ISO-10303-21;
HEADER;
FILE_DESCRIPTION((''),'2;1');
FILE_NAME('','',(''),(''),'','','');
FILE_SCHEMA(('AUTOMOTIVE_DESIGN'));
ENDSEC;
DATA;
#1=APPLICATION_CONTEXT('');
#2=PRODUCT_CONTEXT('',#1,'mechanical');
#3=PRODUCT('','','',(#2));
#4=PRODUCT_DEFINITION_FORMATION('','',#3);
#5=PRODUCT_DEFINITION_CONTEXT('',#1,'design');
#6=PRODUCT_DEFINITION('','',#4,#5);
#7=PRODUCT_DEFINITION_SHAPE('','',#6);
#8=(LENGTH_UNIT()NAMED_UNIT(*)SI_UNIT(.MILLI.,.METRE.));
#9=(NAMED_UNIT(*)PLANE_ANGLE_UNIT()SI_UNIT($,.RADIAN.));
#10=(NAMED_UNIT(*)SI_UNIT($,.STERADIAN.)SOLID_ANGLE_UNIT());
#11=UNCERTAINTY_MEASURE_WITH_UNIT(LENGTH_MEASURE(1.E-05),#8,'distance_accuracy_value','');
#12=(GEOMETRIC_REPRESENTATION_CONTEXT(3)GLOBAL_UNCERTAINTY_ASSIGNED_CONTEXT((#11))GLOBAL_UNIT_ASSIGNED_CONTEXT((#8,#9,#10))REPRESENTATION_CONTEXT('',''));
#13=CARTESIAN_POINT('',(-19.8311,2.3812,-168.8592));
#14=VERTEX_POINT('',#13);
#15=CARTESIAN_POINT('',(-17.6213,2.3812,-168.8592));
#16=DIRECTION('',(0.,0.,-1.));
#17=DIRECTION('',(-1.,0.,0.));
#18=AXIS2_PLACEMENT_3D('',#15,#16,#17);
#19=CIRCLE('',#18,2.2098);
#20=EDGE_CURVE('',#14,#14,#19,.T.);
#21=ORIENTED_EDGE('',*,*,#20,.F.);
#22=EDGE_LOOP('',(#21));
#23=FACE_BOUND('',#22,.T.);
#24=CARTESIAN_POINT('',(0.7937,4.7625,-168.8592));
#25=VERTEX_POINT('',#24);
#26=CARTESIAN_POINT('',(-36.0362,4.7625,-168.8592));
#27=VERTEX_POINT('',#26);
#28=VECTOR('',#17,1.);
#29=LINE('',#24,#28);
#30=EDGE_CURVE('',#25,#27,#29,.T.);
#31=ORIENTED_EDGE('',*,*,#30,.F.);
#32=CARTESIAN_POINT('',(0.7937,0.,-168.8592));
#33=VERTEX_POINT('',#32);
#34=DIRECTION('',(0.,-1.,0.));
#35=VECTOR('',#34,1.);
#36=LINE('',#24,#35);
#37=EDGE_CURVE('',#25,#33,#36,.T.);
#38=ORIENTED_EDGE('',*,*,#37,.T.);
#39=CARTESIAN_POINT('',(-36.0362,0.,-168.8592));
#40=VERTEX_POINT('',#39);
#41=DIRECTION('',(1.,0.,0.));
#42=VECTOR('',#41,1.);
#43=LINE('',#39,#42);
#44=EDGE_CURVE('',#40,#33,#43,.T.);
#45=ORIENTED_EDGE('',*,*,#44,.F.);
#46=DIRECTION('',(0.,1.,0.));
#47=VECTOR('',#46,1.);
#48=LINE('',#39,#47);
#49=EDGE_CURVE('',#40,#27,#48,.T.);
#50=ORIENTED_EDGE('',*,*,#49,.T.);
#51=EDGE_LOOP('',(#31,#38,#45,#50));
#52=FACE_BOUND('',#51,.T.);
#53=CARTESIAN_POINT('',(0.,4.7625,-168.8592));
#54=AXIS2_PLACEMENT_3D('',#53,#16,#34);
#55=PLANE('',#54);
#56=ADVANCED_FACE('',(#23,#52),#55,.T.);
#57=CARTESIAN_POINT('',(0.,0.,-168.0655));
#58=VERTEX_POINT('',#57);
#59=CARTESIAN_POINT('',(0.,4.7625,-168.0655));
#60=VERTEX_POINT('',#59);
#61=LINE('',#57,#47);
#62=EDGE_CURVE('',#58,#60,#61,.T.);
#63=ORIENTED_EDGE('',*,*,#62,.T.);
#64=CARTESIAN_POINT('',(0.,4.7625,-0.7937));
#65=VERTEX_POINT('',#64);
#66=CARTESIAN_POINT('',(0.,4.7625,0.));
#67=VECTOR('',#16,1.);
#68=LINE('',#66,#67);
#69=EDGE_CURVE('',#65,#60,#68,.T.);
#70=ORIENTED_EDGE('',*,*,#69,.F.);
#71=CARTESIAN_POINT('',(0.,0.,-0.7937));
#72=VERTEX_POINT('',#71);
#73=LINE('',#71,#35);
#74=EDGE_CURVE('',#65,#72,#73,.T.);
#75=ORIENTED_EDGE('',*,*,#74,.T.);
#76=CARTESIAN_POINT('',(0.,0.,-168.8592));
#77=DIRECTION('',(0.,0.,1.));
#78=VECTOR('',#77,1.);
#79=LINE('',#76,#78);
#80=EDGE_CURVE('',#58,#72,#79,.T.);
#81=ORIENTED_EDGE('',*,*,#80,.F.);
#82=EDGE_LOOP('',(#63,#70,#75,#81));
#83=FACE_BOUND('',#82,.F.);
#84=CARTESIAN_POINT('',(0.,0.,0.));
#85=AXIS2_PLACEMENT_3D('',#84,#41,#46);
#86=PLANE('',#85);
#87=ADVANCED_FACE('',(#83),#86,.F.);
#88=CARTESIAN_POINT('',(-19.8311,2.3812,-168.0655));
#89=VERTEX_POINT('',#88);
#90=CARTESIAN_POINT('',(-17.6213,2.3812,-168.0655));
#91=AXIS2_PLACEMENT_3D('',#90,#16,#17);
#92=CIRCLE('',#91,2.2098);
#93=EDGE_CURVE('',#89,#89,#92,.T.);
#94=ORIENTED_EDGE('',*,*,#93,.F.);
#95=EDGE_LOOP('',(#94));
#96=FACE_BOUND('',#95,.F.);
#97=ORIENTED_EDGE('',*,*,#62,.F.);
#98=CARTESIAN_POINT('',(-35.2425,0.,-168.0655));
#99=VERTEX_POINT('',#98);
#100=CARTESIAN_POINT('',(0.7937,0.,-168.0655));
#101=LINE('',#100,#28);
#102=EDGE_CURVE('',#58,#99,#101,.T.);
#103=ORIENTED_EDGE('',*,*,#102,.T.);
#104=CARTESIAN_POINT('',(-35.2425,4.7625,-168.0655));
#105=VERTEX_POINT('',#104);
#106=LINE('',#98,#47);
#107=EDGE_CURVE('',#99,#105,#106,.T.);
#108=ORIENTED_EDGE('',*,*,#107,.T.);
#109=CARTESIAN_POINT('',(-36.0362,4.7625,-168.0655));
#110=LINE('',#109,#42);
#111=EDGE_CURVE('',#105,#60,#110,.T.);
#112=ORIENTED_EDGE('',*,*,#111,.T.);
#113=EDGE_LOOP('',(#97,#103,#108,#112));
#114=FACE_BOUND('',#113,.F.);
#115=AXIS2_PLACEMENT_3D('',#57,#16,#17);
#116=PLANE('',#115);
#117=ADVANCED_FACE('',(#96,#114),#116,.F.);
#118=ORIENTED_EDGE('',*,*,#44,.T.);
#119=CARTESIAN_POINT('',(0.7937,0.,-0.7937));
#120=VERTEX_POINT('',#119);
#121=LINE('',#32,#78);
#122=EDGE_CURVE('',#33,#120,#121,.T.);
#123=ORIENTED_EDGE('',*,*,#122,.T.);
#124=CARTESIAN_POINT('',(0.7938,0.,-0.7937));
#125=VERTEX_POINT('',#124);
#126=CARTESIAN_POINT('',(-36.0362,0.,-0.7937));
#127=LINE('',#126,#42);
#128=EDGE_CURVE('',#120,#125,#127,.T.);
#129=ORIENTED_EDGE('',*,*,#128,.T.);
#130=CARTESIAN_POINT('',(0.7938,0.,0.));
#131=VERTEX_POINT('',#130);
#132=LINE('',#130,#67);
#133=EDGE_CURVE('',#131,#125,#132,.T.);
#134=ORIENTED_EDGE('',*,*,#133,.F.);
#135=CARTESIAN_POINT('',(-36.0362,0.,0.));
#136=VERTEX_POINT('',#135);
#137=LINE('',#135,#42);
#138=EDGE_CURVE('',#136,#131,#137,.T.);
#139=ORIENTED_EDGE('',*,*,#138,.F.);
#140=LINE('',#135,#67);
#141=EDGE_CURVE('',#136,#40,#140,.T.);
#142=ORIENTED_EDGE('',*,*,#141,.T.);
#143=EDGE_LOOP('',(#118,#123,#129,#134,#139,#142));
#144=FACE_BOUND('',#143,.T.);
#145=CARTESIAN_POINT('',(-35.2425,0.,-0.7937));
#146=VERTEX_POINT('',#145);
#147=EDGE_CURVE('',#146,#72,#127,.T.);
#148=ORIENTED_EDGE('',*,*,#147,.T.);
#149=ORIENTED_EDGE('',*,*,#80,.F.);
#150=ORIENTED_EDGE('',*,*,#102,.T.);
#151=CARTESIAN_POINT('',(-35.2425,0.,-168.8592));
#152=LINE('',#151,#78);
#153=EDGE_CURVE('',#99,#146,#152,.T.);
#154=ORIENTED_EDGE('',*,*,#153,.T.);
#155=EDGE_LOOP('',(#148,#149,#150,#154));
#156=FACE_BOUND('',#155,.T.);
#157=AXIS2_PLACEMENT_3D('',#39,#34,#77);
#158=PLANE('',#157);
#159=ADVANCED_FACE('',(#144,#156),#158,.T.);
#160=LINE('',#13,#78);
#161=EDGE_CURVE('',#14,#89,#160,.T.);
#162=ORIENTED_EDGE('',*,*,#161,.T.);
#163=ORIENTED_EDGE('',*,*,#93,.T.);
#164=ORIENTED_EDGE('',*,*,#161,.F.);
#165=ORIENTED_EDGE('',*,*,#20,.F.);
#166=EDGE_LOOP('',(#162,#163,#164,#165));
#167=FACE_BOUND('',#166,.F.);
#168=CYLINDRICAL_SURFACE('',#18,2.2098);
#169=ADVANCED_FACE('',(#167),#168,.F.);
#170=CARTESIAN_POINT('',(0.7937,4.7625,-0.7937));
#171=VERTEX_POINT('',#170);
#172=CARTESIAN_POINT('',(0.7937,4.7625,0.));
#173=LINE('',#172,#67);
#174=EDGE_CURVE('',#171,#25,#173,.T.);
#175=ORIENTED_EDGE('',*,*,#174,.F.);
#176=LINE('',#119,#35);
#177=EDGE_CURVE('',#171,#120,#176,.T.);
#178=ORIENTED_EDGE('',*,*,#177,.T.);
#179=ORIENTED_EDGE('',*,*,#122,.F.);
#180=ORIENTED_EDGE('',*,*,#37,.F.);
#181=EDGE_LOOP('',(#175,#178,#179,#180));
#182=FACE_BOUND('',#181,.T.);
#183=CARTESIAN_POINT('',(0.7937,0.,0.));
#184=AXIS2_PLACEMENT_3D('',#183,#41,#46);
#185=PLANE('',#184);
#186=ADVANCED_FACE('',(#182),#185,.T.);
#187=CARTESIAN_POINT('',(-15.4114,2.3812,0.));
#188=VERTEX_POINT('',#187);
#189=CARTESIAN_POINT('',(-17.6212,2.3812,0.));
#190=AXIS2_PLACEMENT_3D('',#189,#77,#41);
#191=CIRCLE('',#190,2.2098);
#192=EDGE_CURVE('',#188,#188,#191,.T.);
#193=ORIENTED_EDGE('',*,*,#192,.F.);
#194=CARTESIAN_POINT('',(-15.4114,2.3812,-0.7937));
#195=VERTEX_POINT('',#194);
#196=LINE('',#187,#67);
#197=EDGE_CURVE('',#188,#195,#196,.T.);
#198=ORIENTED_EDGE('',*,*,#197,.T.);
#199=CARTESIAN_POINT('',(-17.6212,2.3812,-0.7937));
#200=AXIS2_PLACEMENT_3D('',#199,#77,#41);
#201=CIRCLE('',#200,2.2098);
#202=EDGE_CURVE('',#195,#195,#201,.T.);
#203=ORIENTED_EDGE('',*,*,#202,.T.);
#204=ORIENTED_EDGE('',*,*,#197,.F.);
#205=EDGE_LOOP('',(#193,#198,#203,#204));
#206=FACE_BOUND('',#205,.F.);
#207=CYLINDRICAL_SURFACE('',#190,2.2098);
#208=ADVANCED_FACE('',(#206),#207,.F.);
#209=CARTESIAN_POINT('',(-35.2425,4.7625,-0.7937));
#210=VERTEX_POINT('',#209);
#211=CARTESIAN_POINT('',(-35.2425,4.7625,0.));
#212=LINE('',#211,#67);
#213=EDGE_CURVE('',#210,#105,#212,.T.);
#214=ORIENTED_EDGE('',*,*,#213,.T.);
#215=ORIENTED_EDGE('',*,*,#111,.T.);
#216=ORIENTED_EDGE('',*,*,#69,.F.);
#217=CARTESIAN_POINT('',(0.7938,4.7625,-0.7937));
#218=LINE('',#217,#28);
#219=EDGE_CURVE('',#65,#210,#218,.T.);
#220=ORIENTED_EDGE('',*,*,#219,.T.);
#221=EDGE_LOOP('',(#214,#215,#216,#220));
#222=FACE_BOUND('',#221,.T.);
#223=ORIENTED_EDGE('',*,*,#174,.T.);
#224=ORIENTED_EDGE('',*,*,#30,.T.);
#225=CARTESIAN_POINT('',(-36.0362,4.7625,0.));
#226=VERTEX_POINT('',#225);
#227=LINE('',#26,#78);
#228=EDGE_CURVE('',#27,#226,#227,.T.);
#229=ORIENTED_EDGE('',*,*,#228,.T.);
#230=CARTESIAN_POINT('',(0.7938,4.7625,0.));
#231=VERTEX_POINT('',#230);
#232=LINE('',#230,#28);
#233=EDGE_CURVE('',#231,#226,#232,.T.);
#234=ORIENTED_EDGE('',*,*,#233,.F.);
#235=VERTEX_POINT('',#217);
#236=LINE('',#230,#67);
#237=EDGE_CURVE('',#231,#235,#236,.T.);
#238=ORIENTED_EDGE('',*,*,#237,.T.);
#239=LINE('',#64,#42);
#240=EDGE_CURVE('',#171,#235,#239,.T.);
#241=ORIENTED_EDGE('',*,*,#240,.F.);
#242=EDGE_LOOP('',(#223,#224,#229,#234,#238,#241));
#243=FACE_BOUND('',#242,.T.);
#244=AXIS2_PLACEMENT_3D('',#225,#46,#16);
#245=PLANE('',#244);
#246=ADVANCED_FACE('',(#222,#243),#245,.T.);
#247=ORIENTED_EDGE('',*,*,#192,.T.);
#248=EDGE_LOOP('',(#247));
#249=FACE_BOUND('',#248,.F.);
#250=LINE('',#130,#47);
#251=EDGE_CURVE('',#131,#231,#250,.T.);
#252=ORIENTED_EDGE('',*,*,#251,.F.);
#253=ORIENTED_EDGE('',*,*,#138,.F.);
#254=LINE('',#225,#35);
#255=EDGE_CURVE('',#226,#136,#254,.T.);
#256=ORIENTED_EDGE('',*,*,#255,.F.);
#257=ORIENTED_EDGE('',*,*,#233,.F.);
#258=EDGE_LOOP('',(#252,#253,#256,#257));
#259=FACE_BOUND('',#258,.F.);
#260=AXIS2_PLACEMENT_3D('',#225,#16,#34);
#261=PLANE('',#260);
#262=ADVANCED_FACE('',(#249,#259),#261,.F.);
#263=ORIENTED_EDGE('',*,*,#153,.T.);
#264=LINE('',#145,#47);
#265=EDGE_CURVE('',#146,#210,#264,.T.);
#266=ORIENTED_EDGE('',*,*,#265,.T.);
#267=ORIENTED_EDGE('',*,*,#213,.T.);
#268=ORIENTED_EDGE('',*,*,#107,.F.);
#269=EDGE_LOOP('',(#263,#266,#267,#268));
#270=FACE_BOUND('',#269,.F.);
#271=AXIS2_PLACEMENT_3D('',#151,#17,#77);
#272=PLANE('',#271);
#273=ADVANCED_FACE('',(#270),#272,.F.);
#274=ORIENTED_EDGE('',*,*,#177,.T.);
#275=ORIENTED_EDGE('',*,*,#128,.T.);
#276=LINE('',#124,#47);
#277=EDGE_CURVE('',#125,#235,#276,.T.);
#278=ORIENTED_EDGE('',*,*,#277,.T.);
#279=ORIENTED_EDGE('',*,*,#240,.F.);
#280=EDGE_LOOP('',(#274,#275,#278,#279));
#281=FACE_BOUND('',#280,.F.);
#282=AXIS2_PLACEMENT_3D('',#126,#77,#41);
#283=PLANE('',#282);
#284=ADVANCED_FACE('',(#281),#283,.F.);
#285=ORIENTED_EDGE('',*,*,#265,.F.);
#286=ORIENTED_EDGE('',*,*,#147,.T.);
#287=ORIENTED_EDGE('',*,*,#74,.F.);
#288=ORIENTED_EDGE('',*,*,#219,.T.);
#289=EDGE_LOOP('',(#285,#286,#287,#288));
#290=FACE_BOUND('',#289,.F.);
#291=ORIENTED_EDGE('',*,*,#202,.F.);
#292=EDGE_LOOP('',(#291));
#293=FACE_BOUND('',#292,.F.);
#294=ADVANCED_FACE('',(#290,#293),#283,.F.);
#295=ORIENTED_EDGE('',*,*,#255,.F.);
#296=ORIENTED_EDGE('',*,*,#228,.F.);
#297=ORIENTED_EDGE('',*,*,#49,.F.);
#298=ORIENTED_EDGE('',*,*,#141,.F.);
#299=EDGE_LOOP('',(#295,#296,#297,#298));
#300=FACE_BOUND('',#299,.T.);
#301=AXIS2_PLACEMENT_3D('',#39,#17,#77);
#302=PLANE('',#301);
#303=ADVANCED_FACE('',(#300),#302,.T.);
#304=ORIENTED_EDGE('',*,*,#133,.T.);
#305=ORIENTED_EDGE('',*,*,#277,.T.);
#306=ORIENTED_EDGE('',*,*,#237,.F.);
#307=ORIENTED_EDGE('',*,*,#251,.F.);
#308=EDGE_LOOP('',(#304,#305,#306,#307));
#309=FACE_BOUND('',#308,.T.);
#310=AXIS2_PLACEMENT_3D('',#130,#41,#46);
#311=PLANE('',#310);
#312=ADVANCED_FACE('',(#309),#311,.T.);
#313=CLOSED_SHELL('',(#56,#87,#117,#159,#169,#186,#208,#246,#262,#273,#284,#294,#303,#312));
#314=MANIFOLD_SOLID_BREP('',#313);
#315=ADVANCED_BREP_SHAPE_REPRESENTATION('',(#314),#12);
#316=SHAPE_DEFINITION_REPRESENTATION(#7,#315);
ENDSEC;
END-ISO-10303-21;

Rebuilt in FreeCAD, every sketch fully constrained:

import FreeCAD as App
import Part
import Sketcher

V = App.Vector
Q = App.Units.Quantity


def add_polygon(sketch, points):
    """Adds a closed chain of lines whose ends are joined by coincident constraints."""
    first, n = sketch.GeometryCount, len(points)
    for a, b in zip(points, points[1:] + points[:1]):
        sketch.addGeometry(Part.LineSegment(App.Vector(*a, 0), App.Vector(*b, 0)), False)
    for i in range(n):
        sketch.addConstraint(Sketcher.Constraint("Coincident", first + i, 2, first + (i + 1) % n, 1))

doc = App.newDocument("Part")
params = doc.addObject("Spreadsheet::Sheet", "Params")
for row, (alias, value) in enumerate([
    ("sketch1_width", "0.1875 in"),
    ("sketch1_height", "6.648 in"),
    ("pad1_length", "0.031248 in"),
    ("sketch2_width", "1.45 in"),
    ("sketch2_height", "0.1875 in"),
    ("pad2_length", "0.031248 in"),
    ("sketch3_width", "0.1875 in"),
    ("sketch3_height", "6.648 in"),
    ("pad3_length", "0.031248 in"),
    ("sketch4_width", "1.45 in"),
    ("sketch4_height", "0.1875 in"),
    ("pad4_length", "0.031248 in"),
    ("sketch5_diameter", "0.174 in"),
    ("pocket1_length", "0.031248 in"),
    ("sketch6_diameter", "0.174 in"),
    ("pocket2_length", "0.031248 in"),
], start=1):
    params.set(f"A{row}", alias)
    params.set(f"B{row}", "=" + value)
    params.setAlias(f"B{row}", alias)

body = doc.addObject("PartDesign::Body", "Body")

# Sketch on YZ plane
sketch1 = body.newObject("Sketcher::SketchObject", "Sketch")
sketch1.AttachmentSupport = (doc.getObject("YZ_Plane"), [""])
sketch1.MapMode = "FlatFace"
add_polygon(sketch1, [(4.8, 0), (0, 0), (0, -168.9), (4.8, -168.9)])  # lines 0-3
sketch1.addConstraint([
    Sketcher.Constraint("Horizontal", 0),
    Sketcher.Constraint("Vertical", 1),
    Sketcher.Constraint("Horizontal", 2),
    Sketcher.Constraint("Vertical", 3),
    Sketcher.Constraint("Coincident", 0, 2, -1, 1),
    Sketcher.Constraint("DistanceX", 0, 2, 0, 1, Q("0.1875 in")),
    Sketcher.Constraint("DistanceY", 1, 2, 1, 1, Q("6.648 in")),
])
sketch1.setExpression("Constraints[9]", "Params.sketch1_width")
sketch1.setExpression("Constraints[10]", "Params.sketch1_height")
pad1 = body.newObject("PartDesign::Pad", "Pad")
pad1.Profile = sketch1
pad1.setExpression("Length", "Params.pad1_length")

# Sketch on XY plane
sketch2 = body.newObject("Sketcher::SketchObject", "Sketch001")
sketch2.AttachmentSupport = (doc.getObject("XY_Plane"), [""])
sketch2.MapMode = "FlatFace"
sketch2.AttachmentOffset = App.Placement(V(0, 0, -6.648 * 25.4), App.Rotation())
add_polygon(sketch2, [(0.8, 4.8), (0.8, 0), (-36, 0), (-36, 4.8)])  # lines 0-3
sketch2.addConstraint([
    Sketcher.Constraint("Vertical", 0),
    Sketcher.Constraint("Horizontal", 1),
    Sketcher.Constraint("Vertical", 2),
    Sketcher.Constraint("Horizontal", 3),
    Sketcher.Constraint("PointOnObject", 0, 2, -1),
    Sketcher.Constraint("DistanceX", 1, 2, 1, 1, Q("1.45 in")),
    Sketcher.Constraint("DistanceY", 0, 2, 0, 1, Q("0.1875 in")),
    Sketcher.Constraint("DistanceX", -1, 1, 0, 2, Q("0.031248 in")),
])
sketch2.setExpression("Constraints[9]", "Params.sketch2_width")
sketch2.setExpression("Constraints[10]", "Params.sketch2_height")
pad2 = body.newObject("PartDesign::Pad", "Pad001")
pad2.Profile = sketch2
pad2.setExpression("Length", "Params.pad2_length")

# Sketch on YZ plane
sketch3 = body.newObject("Sketcher::SketchObject", "Sketch002")
sketch3.AttachmentSupport = (doc.getObject("YZ_Plane"), [""])
sketch3.MapMode = "FlatFace"
sketch3.AttachmentOffset = App.Placement(V(0, 0, -36.0362), App.Rotation())
add_polygon(sketch3, [(0, 0), (4.8, 0), (4.8, -168.9), (0, -168.9)])  # lines 0-3
sketch3.addConstraint([
    Sketcher.Constraint("Horizontal", 0),
    Sketcher.Constraint("Vertical", 1),
    Sketcher.Constraint("Horizontal", 2),
    Sketcher.Constraint("Vertical", 3),
    Sketcher.Constraint("Coincident", 3, 2, -1, 1),
    Sketcher.Constraint("DistanceX", 0, 1, 0, 2, Q("0.1875 in")),
    Sketcher.Constraint("DistanceY", 1, 2, 1, 1, Q("6.648 in")),
])
sketch3.setExpression("Constraints[9]", "Params.sketch3_width")
sketch3.setExpression("Constraints[10]", "Params.sketch3_height")
pad3 = body.newObject("PartDesign::Pad", "Pad002")
pad3.Profile = sketch3
pad3.setExpression("Length", "Params.pad3_length")

# Sketch on XY plane
sketch4 = body.newObject("Sketcher::SketchObject", "Sketch003")
sketch4.AttachmentSupport = (doc.getObject("XY_Plane"), [""])
sketch4.MapMode = "FlatFace"
add_polygon(sketch4, [(-36, 4.8), (-36, 0), (0.8, 0), (0.8, 4.8)])  # lines 0-3
sketch4.addConstraint([
    Sketcher.Constraint("Vertical", 0),
    Sketcher.Constraint("Horizontal", 1),
    Sketcher.Constraint("Vertical", 2),
    Sketcher.Constraint("Horizontal", 3),
    Sketcher.Constraint("PointOnObject", 0, 2, -1),
    Sketcher.Constraint("DistanceX", 1, 1, 1, 2, Q("1.45 in")),
    Sketcher.Constraint("DistanceY", 0, 2, 0, 1, Q("0.1875 in")),
    Sketcher.Constraint("DistanceX", -1, 1, 1, 2, Q("0.031252 in")),
])
sketch4.setExpression("Constraints[9]", "Params.sketch4_width")
sketch4.setExpression("Constraints[10]", "Params.sketch4_height")
pad4 = body.newObject("PartDesign::Pad", "Pad003")
pad4.Profile = sketch4
pad4.setExpression("Length", "Params.pad4_length")
pad4.Reversed = True

# Sketch on XY plane
sketch5 = body.newObject("Sketcher::SketchObject", "Sketch004")
sketch5.AttachmentSupport = (doc.getObject("XY_Plane"), [""])
sketch5.MapMode = "FlatFace"
sketch5.addGeometry(Part.Circle(V(-17.6, 2.4, 0), V(0, 0, 1), 2.2), False)
sketch5.addConstraint([
    Sketcher.Constraint("Diameter", 0, Q("0.174 in")),
    Sketcher.Constraint("DistanceY", -1, 1, 0, 3, Q("0.093748 in")),
    Sketcher.Constraint("DistanceX", 0, 3, -1, 1, Q("17.6212 mm")),
])
sketch5.setExpression("Constraints[0]", "Params.sketch5_diameter")
pocket1 = body.newObject("PartDesign::Pocket", "Pocket")
pocket1.Profile = sketch5
pocket1.setExpression("Length", "Params.pocket1_length")

# Sketch on XY plane
sketch6 = body.newObject("Sketcher::SketchObject", "Sketch005")
sketch6.AttachmentSupport = (doc.getObject("XY_Plane"), [""])
sketch6.MapMode = "FlatFace"
sketch6.AttachmentOffset = App.Placement(V(0, 0, -6.648 * 25.4), App.Rotation())
sketch6.addGeometry(Part.Circle(V(-17.6, 2.4, 0), V(0, 0, 1), 2.2), False)
sketch6.addConstraint([
    Sketcher.Constraint("Diameter", 0, Q("0.174 in")),
    Sketcher.Constraint("DistanceY", -1, 1, 0, 3, Q("0.093748 in")),
    Sketcher.Constraint("DistanceX", 0, 3, -1, 1, Q("17.6213 mm")),
])
sketch6.setExpression("Constraints[0]", "Params.sketch6_diameter")
pocket2 = body.newObject("PartDesign::Pocket", "Pocket001")
pocket2.Profile = sketch6
pocket2.setExpression("Length", "Params.pocket2_length")
pocket2.Reversed = True

doc.recompute()
